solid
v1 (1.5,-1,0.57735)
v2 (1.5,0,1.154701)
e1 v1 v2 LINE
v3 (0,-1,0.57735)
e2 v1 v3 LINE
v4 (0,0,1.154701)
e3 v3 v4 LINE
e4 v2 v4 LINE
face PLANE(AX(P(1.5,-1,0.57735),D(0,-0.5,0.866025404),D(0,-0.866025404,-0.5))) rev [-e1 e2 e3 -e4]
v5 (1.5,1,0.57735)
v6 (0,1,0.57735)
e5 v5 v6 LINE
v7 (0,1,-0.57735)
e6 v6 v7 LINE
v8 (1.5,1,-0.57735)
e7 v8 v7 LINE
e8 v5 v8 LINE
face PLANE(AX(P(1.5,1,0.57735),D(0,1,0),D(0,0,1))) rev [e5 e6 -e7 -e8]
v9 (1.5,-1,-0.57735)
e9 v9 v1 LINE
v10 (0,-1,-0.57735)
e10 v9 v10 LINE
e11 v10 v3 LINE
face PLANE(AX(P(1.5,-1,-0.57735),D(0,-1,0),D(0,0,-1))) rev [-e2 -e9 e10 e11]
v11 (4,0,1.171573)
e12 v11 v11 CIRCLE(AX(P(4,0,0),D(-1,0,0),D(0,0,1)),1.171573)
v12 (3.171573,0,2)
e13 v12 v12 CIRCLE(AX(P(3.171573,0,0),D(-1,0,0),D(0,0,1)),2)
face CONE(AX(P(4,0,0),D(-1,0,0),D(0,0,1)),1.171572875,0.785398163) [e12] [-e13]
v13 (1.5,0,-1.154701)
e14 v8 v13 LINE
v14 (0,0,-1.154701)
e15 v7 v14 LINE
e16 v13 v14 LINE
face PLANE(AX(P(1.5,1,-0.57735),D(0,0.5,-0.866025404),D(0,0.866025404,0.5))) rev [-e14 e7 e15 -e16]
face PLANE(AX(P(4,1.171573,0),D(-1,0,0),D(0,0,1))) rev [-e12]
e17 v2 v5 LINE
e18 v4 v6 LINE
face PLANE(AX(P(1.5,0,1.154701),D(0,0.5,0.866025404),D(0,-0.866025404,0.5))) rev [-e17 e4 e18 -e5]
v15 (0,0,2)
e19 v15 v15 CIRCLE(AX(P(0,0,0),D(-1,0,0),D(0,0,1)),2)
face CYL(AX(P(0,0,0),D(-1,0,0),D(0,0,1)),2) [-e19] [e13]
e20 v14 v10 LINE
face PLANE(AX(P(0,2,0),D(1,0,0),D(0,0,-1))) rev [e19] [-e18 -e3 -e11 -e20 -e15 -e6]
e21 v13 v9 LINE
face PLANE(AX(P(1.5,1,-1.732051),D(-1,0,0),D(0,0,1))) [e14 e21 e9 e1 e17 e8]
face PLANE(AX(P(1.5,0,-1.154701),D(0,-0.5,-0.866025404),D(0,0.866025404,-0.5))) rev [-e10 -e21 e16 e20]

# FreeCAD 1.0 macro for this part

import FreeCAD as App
import Part
import Sketcher
Q = App.Units.Quantity

doc = App.newDocument("Part")
params = doc.addObject("Spreadsheet::Sheet", "Params")
for row, (alias, value) in enumerate([
    ("sketch1_width", "4 mm"),
    ("sketch1_height", "2 mm"),
    ("revolution_angle", "360 deg"),
    ("pocket1_length", "1.5 mm"),
], start=1):
    params.set(f"A{row}", alias)
    params.set(f"B{row}", "=" + value)
    params.setAlias(f"B{row}", alias)

body = doc.addObject("PartDesign::Body", "Body")

# Sketch on XY plane
sketch1 = body.newObject("Sketcher::SketchObject", "Sketch")
sketch1.AttachmentSupport = (doc.getObject("XY_Plane"), [""])
sketch1.MapMode = "FlatFace"
sketch1.addGeometry([
    Part.LineSegment(App.Vector(4, 0, 0), App.Vector(4, 1.2, 0)),  # 0
    Part.LineSegment(App.Vector(4, 1.2, 0), App.Vector(3.2, 2, 0)),  # 1
    Part.LineSegment(App.Vector(3.2, 2, 0), App.Vector(0, 2, 0)),  # 2
    Part.LineSegment(App.Vector(0, 2, 0), App.Vector(0, 0, 0)),  # 3
    Part.LineSegment(App.Vector(0, 0, 0), App.Vector(4, 0, 0)),  # 4
], False)
sketch1.addConstraint([
    Sketcher.Constraint("Coincident", 0, 2, 1, 1),
    Sketcher.Constraint("Coincident", 1, 2, 2, 1),
    Sketcher.Constraint("Coincident", 2, 2, 3, 1),
    Sketcher.Constraint("Coincident", 3, 2, 4, 1),
    Sketcher.Constraint("Coincident", 4, 2, 0, 1),
    Sketcher.Constraint("Vertical", 0),
    Sketcher.Constraint("Horizontal", 2),
    Sketcher.Constraint("Vertical", 3),
    Sketcher.Constraint("Horizontal", 4),
    Sketcher.Constraint("Coincident", 3, 2, -1, 1),
    Sketcher.Constraint("DistanceX", 4, 1, 4, 2, 4.0),
    Sketcher.Constraint("DistanceY", 3, 2, 3, 1, 2.0),
    Sketcher.Constraint("Angle", 1, Q("135 deg")),
    Sketcher.Constraint("DistanceX", 2, 2, 2, 1, 3.171573),
])
sketch1.setExpression("Constraints[10]", "Params.sketch1_width")
sketch1.setExpression("Constraints[11]", "Params.sketch1_height")
revolution = body.newObject("PartDesign::Revolution", "Revolution")
revolution.Profile = sketch1
revolution.ReferenceAxis = (sketch1, ["H_Axis"])
revolution.setExpression("Angle", "Params.revolution_angle")

# Sketch on YZ plane
sketch2 = body.newObject("Sketcher::SketchObject", "Sketch001")
sketch2.AttachmentSupport = (doc.getObject("YZ_Plane"), [""])
sketch2.MapMode = "FlatFace"
sketch2.addGeometry([
    Part.LineSegment(App.Vector(1, -0.6, 0), App.Vector(0, -1.2, 0)),  # 0
    Part.LineSegment(App.Vector(0, -1.2, 0), App.Vector(-1, -0.6, 0)),  # 1
    Part.LineSegment(App.Vector(-1, -0.6, 0), App.Vector(-1, 0.6, 0)),  # 2
    Part.LineSegment(App.Vector(-1, 0.6, 0), App.Vector(0, 1.2, 0)),  # 3
    Part.LineSegment(App.Vector(0, 1.2, 0), App.Vector(1, 0.6, 0)),  # 4
    Part.LineSegment(App.Vector(1, 0.6, 0), App.Vector(1, -0.6, 0)),  # 5
], False)
sketch2.addConstraint([
    Sketcher.Constraint("Coincident", 0, 2, 1, 1),
    Sketcher.Constraint("Coincident", 1, 2, 2, 1),
    Sketcher.Constraint("Coincident", 2, 2, 3, 1),
    Sketcher.Constraint("Coincident", 3, 2, 4, 1),
    Sketcher.Constraint("Coincident", 4, 2, 5, 1),
    Sketcher.Constraint("Coincident", 5, 2, 0, 1),
    Sketcher.Constraint("Vertical", 2),
    Sketcher.Constraint("Vertical", 5),
    Sketcher.Constraint("Symmetric", 0, 2, 3, 2, -1, 1),
    Sketcher.Constraint("Symmetric", 1, 2, 4, 2, -1, 1),
    Sketcher.Constraint("PointOnObject", 0, 2, -2),
    Sketcher.Constraint("Parallel", 0, 3),
    Sketcher.Constraint("Horizontal", 2, 2, 4, 2),
    Sketcher.Constraint("Angle", 0, Q("-150 deg")),
    Sketcher.Constraint("DistanceX", 1, 2, -1, 1, 1.0),
    Sketcher.Constraint("DistanceY", 2, 1, 2, 2, 1.154701),
])
pocket1 = body.newObject("PartDesign::Pocket", "Pocket")
pocket1.Profile = sketch2
pocket1.setExpression("Length", "Params.pocket1_length")
pocket1.Reversed = True

doc.recompute()
